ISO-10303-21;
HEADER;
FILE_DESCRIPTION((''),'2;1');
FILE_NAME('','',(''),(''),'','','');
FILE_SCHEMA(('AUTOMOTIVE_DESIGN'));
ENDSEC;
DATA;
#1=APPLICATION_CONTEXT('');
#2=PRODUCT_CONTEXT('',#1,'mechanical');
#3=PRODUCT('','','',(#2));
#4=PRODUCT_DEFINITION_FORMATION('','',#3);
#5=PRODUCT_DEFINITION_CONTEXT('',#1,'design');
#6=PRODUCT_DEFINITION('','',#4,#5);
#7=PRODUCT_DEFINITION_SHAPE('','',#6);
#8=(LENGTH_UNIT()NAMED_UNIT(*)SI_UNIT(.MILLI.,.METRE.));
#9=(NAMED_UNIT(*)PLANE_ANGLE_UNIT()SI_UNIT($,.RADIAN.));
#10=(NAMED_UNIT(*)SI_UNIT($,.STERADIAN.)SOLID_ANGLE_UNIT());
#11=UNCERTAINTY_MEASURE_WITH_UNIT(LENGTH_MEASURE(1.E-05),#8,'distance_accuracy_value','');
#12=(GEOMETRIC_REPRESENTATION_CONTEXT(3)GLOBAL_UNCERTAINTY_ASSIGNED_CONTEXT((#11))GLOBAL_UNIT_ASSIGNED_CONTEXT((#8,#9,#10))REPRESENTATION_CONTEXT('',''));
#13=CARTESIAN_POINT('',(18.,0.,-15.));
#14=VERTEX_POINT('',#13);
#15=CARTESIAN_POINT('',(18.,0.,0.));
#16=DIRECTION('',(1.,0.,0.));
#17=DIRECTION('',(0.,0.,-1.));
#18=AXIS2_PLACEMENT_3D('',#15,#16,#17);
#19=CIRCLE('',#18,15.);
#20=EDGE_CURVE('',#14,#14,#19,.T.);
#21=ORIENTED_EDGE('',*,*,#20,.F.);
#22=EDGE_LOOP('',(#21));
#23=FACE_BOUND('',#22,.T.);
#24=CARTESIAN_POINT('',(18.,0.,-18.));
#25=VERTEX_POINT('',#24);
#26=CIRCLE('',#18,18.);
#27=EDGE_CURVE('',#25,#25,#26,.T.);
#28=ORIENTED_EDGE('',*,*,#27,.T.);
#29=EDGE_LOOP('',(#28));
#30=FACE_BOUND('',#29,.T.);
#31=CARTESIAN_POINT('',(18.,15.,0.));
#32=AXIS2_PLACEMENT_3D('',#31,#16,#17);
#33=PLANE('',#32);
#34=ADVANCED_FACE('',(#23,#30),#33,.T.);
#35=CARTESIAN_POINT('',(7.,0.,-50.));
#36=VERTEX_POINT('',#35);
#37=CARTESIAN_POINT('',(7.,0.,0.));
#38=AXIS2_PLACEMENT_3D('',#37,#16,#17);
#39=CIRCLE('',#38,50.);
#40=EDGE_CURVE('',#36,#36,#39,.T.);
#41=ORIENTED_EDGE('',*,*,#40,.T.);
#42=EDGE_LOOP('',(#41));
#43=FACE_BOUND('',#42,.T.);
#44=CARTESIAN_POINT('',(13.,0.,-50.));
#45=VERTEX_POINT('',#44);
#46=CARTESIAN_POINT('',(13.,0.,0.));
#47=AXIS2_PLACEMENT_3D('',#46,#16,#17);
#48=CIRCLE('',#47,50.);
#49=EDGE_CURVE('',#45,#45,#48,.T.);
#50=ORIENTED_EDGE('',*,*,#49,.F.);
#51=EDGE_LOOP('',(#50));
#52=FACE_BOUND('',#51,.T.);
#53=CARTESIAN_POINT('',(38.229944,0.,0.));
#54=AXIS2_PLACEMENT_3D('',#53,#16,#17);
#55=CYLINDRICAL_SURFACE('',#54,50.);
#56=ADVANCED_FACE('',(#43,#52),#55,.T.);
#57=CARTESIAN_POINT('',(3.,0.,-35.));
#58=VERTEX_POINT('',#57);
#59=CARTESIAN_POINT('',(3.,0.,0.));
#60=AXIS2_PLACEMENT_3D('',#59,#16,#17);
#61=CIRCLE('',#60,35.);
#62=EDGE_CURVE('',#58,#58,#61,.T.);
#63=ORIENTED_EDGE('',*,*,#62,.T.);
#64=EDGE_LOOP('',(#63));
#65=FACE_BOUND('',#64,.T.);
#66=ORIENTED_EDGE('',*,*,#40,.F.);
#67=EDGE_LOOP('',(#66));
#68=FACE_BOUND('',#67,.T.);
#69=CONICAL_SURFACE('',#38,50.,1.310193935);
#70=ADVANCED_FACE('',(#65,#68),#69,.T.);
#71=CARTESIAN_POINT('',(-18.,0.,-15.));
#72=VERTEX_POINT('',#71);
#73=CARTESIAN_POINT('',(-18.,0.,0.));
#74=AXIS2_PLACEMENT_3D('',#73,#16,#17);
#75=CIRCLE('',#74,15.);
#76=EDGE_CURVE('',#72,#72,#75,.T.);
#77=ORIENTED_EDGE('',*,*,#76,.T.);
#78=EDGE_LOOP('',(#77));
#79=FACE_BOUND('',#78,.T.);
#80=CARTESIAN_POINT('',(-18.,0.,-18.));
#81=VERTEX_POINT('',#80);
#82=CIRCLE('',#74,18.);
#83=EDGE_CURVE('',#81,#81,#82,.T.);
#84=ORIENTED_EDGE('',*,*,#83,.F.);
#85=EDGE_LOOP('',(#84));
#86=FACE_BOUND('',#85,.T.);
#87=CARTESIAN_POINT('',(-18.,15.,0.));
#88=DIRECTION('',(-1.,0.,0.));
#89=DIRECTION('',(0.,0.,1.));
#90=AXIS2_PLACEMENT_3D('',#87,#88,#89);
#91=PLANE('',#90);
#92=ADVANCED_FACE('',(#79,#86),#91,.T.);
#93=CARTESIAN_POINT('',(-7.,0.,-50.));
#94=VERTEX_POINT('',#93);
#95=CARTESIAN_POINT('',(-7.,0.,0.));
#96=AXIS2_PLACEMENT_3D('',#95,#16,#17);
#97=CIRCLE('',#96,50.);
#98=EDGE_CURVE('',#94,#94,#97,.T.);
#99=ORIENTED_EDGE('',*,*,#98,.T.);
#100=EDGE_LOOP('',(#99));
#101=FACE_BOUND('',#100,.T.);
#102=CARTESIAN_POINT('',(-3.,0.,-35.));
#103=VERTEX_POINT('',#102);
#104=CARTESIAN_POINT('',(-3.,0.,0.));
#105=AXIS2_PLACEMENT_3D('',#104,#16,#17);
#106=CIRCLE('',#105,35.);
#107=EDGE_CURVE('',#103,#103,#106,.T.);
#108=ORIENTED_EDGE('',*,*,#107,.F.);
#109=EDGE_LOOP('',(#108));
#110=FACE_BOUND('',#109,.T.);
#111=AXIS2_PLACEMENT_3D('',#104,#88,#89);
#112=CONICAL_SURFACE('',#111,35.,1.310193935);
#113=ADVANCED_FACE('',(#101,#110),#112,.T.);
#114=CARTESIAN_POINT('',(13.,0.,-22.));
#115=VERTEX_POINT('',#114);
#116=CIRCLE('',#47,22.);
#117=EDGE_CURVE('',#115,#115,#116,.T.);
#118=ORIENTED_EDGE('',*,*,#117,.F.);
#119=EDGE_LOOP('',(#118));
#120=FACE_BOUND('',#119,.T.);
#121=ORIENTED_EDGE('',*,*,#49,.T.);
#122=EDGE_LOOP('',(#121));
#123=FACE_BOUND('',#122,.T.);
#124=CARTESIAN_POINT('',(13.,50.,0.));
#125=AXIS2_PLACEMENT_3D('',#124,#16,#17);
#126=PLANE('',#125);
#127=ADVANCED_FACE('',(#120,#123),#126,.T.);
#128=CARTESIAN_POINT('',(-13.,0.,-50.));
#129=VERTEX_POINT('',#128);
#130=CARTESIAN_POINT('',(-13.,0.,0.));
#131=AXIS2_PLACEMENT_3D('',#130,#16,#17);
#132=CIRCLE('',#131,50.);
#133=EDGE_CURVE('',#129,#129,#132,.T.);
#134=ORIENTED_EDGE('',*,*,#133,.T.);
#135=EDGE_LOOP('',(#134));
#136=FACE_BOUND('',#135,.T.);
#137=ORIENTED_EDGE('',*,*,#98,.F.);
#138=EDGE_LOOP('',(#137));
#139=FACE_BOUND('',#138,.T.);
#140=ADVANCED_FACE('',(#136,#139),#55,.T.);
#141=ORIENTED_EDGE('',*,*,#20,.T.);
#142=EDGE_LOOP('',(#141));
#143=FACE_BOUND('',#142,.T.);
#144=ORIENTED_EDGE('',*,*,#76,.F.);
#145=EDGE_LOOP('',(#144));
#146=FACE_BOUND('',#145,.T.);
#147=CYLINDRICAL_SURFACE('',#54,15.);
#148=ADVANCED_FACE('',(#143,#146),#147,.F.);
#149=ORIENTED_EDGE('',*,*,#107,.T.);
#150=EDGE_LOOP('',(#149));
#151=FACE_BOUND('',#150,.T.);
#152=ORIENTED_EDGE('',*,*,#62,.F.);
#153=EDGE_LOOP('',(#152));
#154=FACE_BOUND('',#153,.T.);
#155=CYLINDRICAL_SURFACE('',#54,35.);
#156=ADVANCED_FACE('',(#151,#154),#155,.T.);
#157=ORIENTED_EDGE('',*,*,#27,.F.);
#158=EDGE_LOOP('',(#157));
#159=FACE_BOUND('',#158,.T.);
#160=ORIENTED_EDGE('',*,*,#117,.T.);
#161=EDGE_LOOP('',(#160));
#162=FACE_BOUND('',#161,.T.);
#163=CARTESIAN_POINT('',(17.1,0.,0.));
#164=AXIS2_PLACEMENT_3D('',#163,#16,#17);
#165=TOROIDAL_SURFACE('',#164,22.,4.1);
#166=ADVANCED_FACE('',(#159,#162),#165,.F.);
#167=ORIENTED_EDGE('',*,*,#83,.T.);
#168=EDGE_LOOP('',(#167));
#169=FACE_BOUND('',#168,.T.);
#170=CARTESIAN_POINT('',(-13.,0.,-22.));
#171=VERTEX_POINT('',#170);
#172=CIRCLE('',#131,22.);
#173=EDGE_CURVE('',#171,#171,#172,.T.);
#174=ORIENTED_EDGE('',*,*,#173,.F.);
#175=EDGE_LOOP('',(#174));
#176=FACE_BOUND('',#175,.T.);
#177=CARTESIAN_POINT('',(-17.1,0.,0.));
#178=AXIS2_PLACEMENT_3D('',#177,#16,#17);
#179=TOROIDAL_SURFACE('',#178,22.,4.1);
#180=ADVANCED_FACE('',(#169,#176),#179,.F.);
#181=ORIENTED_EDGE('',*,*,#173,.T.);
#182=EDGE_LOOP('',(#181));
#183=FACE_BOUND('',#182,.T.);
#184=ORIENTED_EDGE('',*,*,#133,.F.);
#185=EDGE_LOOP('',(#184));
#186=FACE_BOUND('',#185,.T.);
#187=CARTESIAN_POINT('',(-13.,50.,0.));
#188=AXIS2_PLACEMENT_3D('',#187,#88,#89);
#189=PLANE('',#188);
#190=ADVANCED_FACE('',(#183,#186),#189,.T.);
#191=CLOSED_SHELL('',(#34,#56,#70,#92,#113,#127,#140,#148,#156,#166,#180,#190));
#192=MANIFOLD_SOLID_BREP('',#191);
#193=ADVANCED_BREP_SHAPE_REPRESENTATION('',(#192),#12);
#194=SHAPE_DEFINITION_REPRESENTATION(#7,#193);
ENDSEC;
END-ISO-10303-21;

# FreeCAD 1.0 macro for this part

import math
import FreeCAD as App
import Part
import Sketcher

V = App.Vector
Q = App.Units.Quantity

doc = App.newDocument("Part")
body = doc.addObject("PartDesign::Body", "Body")

sketch1 = body.newObject("Sketcher::SketchObject", "Sketch")
sketch1.AttachmentSupport = (doc.getObject("XY_Plane"), [""])
sketch1.MapMode = "FlatFace"
sketch1.addGeometry([
    Part.LineSegment(V(-18, 15, 0), V(18, 15, 0)),
    Part.LineSegment(V(18, 15, 0), V(18, 18, 0)),
    Part.ArcOfCircle(Part.Circle(V(17.1, 22, 0), V(0, 0, 1), 4.1), math.radians(180), math.radians(282.680383)),
    Part.LineSegment(V(13, 22, 0), V(13, 50, 0)),
    Part.LineSegment(V(13, 50, 0), V(7, 50, 0)),
    Part.LineSegment(V(7, 50, 0), V(3, 35, 0)),
    Part.LineSegment(V(3, 35, 0), V(-3, 35, 0)),
    Part.LineSegment(V(-3, 35, 0), V(-7, 50, 0)),
    Part.LineSegment(V(-7, 50, 0), V(-13, 50, 0)),
    Part.LineSegment(V(-13, 50, 0), V(-13, 22, 0)),
    Part.ArcOfCircle(Part.Circle(V(-17.1, 22, 0), V(0, 0, 1), 4.1), math.radians(-102.680383), math.radians(0)),
    Part.LineSegment(V(-18, 18, 0), V(-18, 15, 0)),
], False)
sketch1.addConstraint([
    Sketcher.Constraint("Coincident", 0, 2, 1, 1),
    Sketcher.Constraint("Coincident", 1, 2, 2, 2),
    Sketcher.Constraint("Tangent", 2, 1, 3, 1),
    Sketcher.Constraint("Coincident", 3, 2, 4, 1),
    Sketcher.Constraint("Coincident", 4, 2, 5, 1),
    Sketcher.Constraint("Coincident", 5, 2, 6, 1),
    Sketcher.Constraint("Coincident", 6, 2, 7, 1),
    Sketcher.Constraint("Coincident", 7, 2, 8, 1),
    Sketcher.Constraint("Coincident", 8, 2, 9, 1),
    Sketcher.Constraint("Tangent", 9, 2, 10, 2),
    Sketcher.Constraint("Coincident", 10, 1, 11, 1),
    Sketcher.Constraint("Coincident", 11, 2, 0, 1),
    Sketcher.Constraint("Horizontal", 0),
    Sketcher.Constraint("Vertical", 1),
    Sketcher.Constraint("Vertical", 3),
    Sketcher.Constraint("Horizontal", 4),
    Sketcher.Constraint("Horizontal", 6),
    Sketcher.Constraint("Horizontal", 8),
    Sketcher.Constraint("Vertical", 9),
    Sketcher.Constraint("Vertical", 11),
    Sketcher.Constraint("Equal", 2, 10),
    Sketcher.Constraint("Symmetric", 2, 3, 10, 3, -2),
    Sketcher.Constraint("Symmetric", 4, 2, 7, 2, -2),
    Sketcher.Constraint("Horizontal", 1, 2, 10, 1),
    Sketcher.Constraint("Equal", 4, 6),
    Sketcher.Constraint("Equal", 5, 7),
    Sketcher.Constraint("Radius", 2, Q("4.1 mm")),
    Sketcher.Constraint("DistanceX", 0, 1, 0, 2, Q("36 mm")),
    Sketcher.Constraint("DistanceX", 4, 2, 4, 1, Q("6 mm")),
    Sketcher.Constraint("DistanceY", 1, 1, 1, 2, Q("3 mm")),
    Sketcher.Constraint("DistanceY", 3, 1, 3, 2, Q("28 mm")),
    Sketcher.Constraint("DistanceY", -1, 1, 2, 3, Q("22 mm")),
    Sketcher.Constraint("DistanceY", -1, 1, 0, 2, Q("15 mm")),
    Sketcher.Constraint("DistanceY", -1, 1, 5, 2, Q("35 mm")),
])
revolution = body.newObject("PartDesign::Revolution", "Revolution")
revolution.Profile = sketch1
revolution.ReferenceAxis = (sketch1, ["H_Axis"])
revolution.Angle = 360

doc.recompute()
